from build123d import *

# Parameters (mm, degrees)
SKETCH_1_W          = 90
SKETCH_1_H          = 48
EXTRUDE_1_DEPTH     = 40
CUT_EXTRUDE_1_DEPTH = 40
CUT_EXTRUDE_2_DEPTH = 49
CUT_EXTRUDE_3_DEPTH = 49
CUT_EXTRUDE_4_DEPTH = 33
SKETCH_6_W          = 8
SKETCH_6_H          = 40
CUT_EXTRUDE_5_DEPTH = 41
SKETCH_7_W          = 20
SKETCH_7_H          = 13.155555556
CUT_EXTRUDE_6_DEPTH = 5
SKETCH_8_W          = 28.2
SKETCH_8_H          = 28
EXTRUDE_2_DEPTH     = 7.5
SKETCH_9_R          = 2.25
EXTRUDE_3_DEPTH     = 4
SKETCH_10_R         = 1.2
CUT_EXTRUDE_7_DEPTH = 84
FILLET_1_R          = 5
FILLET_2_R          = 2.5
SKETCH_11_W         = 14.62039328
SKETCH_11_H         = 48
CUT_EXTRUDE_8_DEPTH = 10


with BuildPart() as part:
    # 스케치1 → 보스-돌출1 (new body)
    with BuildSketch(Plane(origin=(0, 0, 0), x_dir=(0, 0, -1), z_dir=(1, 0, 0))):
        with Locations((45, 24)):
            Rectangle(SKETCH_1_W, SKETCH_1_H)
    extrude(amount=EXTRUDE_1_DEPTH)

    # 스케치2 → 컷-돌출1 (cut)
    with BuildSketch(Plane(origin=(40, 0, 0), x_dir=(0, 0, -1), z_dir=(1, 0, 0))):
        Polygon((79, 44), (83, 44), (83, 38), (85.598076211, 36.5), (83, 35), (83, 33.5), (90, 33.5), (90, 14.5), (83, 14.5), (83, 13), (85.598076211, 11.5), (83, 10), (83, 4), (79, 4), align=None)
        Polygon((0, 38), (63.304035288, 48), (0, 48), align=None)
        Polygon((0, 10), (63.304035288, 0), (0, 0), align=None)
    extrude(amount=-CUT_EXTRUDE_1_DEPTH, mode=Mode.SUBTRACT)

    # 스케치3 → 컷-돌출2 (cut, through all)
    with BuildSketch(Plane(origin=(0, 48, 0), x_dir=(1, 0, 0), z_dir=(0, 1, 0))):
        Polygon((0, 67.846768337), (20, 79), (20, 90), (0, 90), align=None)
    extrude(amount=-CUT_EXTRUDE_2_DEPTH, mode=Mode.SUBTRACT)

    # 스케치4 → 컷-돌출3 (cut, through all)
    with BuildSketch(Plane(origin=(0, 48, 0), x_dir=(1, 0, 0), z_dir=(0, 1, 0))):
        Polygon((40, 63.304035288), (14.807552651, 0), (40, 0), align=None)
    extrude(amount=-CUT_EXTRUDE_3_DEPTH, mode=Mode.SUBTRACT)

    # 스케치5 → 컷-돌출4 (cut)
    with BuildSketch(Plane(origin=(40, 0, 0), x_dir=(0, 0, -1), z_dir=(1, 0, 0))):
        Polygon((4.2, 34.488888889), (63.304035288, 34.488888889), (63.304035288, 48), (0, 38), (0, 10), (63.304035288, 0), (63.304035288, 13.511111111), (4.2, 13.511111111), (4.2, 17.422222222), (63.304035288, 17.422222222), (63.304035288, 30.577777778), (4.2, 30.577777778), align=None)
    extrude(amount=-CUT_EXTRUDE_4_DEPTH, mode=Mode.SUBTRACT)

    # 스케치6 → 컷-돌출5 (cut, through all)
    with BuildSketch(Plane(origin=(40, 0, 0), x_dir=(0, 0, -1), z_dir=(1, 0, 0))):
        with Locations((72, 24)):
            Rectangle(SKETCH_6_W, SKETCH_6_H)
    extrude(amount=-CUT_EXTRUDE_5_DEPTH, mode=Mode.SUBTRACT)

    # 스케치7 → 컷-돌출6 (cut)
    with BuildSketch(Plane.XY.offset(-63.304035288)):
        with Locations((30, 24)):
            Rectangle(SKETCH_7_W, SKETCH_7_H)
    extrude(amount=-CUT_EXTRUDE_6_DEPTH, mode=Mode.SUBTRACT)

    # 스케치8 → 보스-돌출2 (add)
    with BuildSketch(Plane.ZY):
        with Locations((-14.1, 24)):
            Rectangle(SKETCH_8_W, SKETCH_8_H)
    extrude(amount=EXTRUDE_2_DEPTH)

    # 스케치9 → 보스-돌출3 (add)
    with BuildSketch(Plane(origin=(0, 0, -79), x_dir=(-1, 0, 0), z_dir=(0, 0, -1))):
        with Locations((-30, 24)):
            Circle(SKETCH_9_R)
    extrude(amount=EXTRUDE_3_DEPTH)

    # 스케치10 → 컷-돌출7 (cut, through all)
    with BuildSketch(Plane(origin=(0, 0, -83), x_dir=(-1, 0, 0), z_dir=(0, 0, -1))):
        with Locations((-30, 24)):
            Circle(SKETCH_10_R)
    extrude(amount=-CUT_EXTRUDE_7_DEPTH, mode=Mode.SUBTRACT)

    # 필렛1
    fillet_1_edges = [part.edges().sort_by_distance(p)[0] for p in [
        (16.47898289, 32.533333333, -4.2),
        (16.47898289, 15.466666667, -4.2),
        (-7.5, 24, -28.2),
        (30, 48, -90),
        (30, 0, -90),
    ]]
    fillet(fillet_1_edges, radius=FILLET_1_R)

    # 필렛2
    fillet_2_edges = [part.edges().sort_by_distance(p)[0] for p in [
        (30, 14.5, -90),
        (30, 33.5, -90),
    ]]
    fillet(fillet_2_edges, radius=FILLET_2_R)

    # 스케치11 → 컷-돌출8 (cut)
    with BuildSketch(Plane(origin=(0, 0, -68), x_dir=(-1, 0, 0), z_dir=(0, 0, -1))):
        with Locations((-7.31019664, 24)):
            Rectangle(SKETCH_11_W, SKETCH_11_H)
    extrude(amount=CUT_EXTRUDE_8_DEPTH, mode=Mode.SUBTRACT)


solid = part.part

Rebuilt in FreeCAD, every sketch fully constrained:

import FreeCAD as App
import Part
import Sketcher
from FreeCAD import Vector
Q = App.Units.Quantity


def edges_at(feature, points):
    """Names of the edges that pass closest to the given points."""
    edges = feature.Shape.Edges
    near = lambda p: min(range(len(edges)), key=lambda i: edges[i].distToShape(Part.Vertex(*p))[0])
    return sorted({f"Edge{near(p) + 1}" for p in points})


def add_polygon(sketch, points):
    """Adds a closed chain of lines whose ends are joined by coincident constraints."""
    first, n = sketch.GeometryCount, len(points)
    for a, b in zip(points, points[1:] + points[:1]):
        sketch.addGeometry(Part.LineSegment(App.Vector(*a, 0), App.Vector(*b, 0)), False)
    for i in range(n):
        sketch.addConstraint(Sketcher.Constraint("Coincident", first + i, 2, first + (i + 1) % n, 1))

doc = App.newDocument("Part")
body = doc.addObject("PartDesign::Body", "Body")

# Sketch on YZ plane
sketch1 = body.newObject("Sketcher::SketchObject", "Sketch")
sketch1.AttachmentSupport = (doc.getObject("YZ_Plane"), [""])
sketch1.MapMode = "FlatFace"
add_polygon(sketch1, [(48, 0), (0, 0), (0, -90), (48, -90)])  # lines 0-3
sketch1.addConstraint([
    Sketcher.Constraint("Horizontal", 0),
    Sketcher.Constraint("Vertical", 1),
    Sketcher.Constraint("Horizontal", 2),
    Sketcher.Constraint("Vertical", 3),
    Sketcher.Constraint("Coincident", 0, 2, -1, 1),
    Sketcher.Constraint("DistanceX", 0, 2, 0, 1, 48.0),
    Sketcher.Constraint("DistanceY", 1, 2, 1, 1, 90.0),
])
pad1 = body.newObject("PartDesign::Pad", "Pad")
pad1.Profile = sketch1
pad1.Length = 40

# Sketch on YZ plane
sketch2 = body.newObject("Sketcher::SketchObject", "Sketch001")
sketch2.AttachmentSupport = (doc.getObject("YZ_Plane"), [""])
sketch2.MapMode = "FlatFace"
sketch2.AttachmentOffset = App.Placement(Vector(0, 0, 40), App.Rotation())
add_polygon(sketch2, [(44, -83), (44, -79), (4, -79), (4, -83), (10, -83), (11.5, -85.6), (13, -83), (14.5, -83), (14.5, -90), (33.5, -90), (33.5, -83), (35, -83), (36.5, -85.6), (38, -83)])  # lines 0-13
add_polygon(sketch2, [(38, 0), (48, -63.3), (48, 0)])  # lines 14-16
add_polygon(sketch2, [(0, -63.3), (10, 0), (0, 0)])  # lines 17-19
sketch2.addConstraint([
    Sketcher.Constraint("Vertical", 0),
    Sketcher.Constraint("Horizontal", 1),
    Sketcher.Constraint("Vertical", 2),
    Sketcher.Constraint("Horizontal", 3),
    Sketcher.Constraint("Horizontal", 6),
    Sketcher.Constraint("Vertical", 7),
    Sketcher.Constraint("Horizontal", 8),
    Sketcher.Constraint("Vertical", 9),
    Sketcher.Constraint("Horizontal", 10),
    Sketcher.Constraint("Horizontal", 13),
    Sketcher.Constraint("Vertical", 15),
    Sketcher.Constraint("Horizontal", 16),
    Sketcher.Constraint("Horizontal", 18),
    Sketcher.Constraint("Vertical", 19),
    Sketcher.Constraint("Coincident", 18, 2, -1, 1),
    Sketcher.Constraint("PointOnObject", 15, 2, -1),
    Sketcher.Constraint("Parallel", 4, 11),
    Sketcher.Constraint("Parallel", 5, 12),
    Sketcher.Constraint("Horizontal", 3, 2, 5, 2),
    Sketcher.Constraint("Horizontal", 6, 2, 9, 2),
    Sketcher.Constraint("Horizontal", 4, 2, 11, 2),
    Sketcher.Constraint("Horizontal", 10, 2, 12, 2),
    Sketcher.Constraint("Horizontal", 14, 2, 19, 2),
    Sketcher.Constraint("Vertical", 12, 2, 16, 2),
    Sketcher.Constraint("Vertical", 3, 2, 17, 2),
    Sketcher.Constraint("Equal", 6, 10),
    Sketcher.Constraint("Equal", 3, 13),
    Sketcher.Constraint("Equal", 16, 18),
    Sketcher.Constraint("Equal", 4, 5),
    Sketcher.Constraint("DistanceX", 1, 2, 1, 1, 40.0),
    Sketcher.Constraint("DistanceX", 3, 1, 3, 2, 6.0),
    Sketcher.Constraint("DistanceX", 8, 1, 8, 2, 19.0),
    Sketcher.Constraint("DistanceX", 16, 2, 16, 1, 10.0),
    Sketcher.Constraint("DistanceY", 0, 1, 0, 2, 4.0),
    Sketcher.Constraint("DistanceY", 7, 2, 7, 1, 7.0),
    Sketcher.Constraint("Angle", 4, Q("-60 deg")),
    Sketcher.Constraint("Distance", 4, 3.0),
    Sketcher.Constraint("DistanceY", 0, 2, -1, 1, 79.0),
    Sketcher.Constraint("DistanceY", 15, 1, 15, 2, 63.304035),
])
pocket1 = body.newObject("PartDesign::Pocket", "Pocket")
pocket1.Profile = sketch2
pocket1.Length = 40

# Sketch on XZ plane
sketch3 = body.newObject("Sketcher::SketchObject", "Sketch002")
sketch3.AttachmentSupport = (doc.getObject("XZ_Plane"), [""])
sketch3.MapMode = "FlatFace"
sketch3.AttachmentOffset = App.Placement(Vector(0, 0, -48), App.Rotation())
add_polygon(sketch3, [(0, -68), (20, -79), (20, -90), (0, -90)])  # lines 0-3
sketch3.addConstraint([
    Sketcher.Constraint("Vertical", 1),
    Sketcher.Constraint("Horizontal", 2),
    Sketcher.Constraint("Vertical", 3),
    Sketcher.Constraint("PointOnObject", 2, 2, -2),
    Sketcher.Constraint("DistanceX", 2, 2, 2, 1, 20.0),
    Sketcher.Constraint("DistanceY", 1, 2, 1, 1, 11.0),
    Sketcher.Constraint("DistanceY", 0, 2, -1, 1, 79.0),
    Sketcher.Constraint("DistanceY", 3, 1, 3, 2, 22.153232),
])
pocket2 = body.newObject("PartDesign::Pocket", "Pocket001")
pocket2.Profile = sketch3
pocket2.Type = "ThroughAll"
pocket2.Reversed = True

# Sketch on XZ plane
sketch4 = body.newObject("Sketcher::SketchObject", "Sketch003")
sketch4.AttachmentSupport = (doc.getObject("XZ_Plane"), [""])
sketch4.MapMode = "FlatFace"
sketch4.AttachmentOffset = App.Placement(Vector(0, 0, -48), App.Rotation())
add_polygon(sketch4, [(40, -63), (15, 0), (40, 0)])  # lines 0-2
sketch4.addConstraint([
    Sketcher.Constraint("Horizontal", 1),
    Sketcher.Constraint("Vertical", 2),
    Sketcher.Constraint("PointOnObject", 0, 2, -1),
    Sketcher.Constraint("DistanceX", -1, 1, 1, 2, 40.0),
    Sketcher.Constraint("DistanceX", 1, 1, 1, 2, 25.192447),
    Sketcher.Constraint("DistanceY", 2, 2, 2, 1, 63.304035),
])
pocket3 = body.newObject("PartDesign::Pocket", "Pocket002")
pocket3.Profile = sketch4
pocket3.Type = "ThroughAll"
pocket3.Reversed = True

# Sketch on YZ plane
sketch5 = body.newObject("Sketcher::SketchObject", "Sketch004")
sketch5.AttachmentSupport = (doc.getObject("YZ_Plane"), [""])
sketch5.MapMode = "FlatFace"
sketch5.AttachmentOffset = App.Placement(Vector(0, 0, 40), App.Rotation())
add_polygon(sketch5, [(34.5, -4.2), (34.5, -63.3), (48, -63.3), (38, 0), (10, 0), (0, -63.3), (13.5, -63.3), (13.5, -4.2), (17.4, -4.2), (17.4, -63.3), (30.6, -63.3), (30.6, -4.2)])  # lines 0-11
sketch5.addConstraint([
    Sketcher.Constraint("Vertical", 0),
    Sketcher.Constraint("Horizontal", 1),
    Sketcher.Constraint("Horizontal", 3),
    Sketcher.Constraint("Horizontal", 5),
    Sketcher.Constraint("Vertical", 6),
    Sketcher.Constraint("Horizontal", 7),
    Sketcher.Constraint("Vertical", 8),
    Sketcher.Constraint("Horizontal", 9),
    Sketcher.Constraint("Vertical", 10),
    Sketcher.Constraint("Horizontal", 11),
    Sketcher.Constraint("PointOnObject", 2, 2, -1),
    Sketcher.Constraint("PointOnObject", 4, 2, -2),
    Sketcher.Constraint("Horizontal", 1, 2, 4, 2),
    Sketcher.Constraint("Horizontal", 5, 2, 8, 2),
    Sketcher.Constraint("Horizontal", 7, 2, 10, 2),
    Sketcher.Constraint("Equal", 1, 5),
    Sketcher.Constraint("Equal", 7, 11),
    Sketcher.Constraint("Equal", 2, 4),
    Sketcher.Constraint("DistanceX", 3, 2, 3, 1, 28.0),
    Sketcher.Constraint("DistanceX", -1, 1, 1, 2, 48.0),
    Sketcher.Constraint("DistanceY", 6, 2, -1, 1, 4.2),
    Sketcher.Constraint("DistanceX", 1, 1, 1, 2, 13.511111),
    Sketcher.Constraint("DistanceX", 7, 1, 7, 2, 3.911111),
    Sketcher.Constraint("DistanceY", 0, 2, 0, 1, 59.104035),
])
pocket4 = body.newObject("PartDesign::Pocket", "Pocket003")
pocket4.Profile = sketch5
pocket4.Length = 33

# Sketch on YZ plane
sketch6 = body.newObject("Sketcher::SketchObject", "Sketch005")
sketch6.AttachmentSupport = (doc.getObject("YZ_Plane"), [""])
sketch6.MapMode = "FlatFace"
sketch6.AttachmentOffset = App.Placement(Vector(0, 0, 40), App.Rotation())
add_polygon(sketch6, [(44, -68), (4, -68), (4, -76), (44, -76)])  # lines 0-3
sketch6.addConstraint([
    Sketcher.Constraint("Horizontal", 0),
    Sketcher.Constraint("Vertical", 1),
    Sketcher.Constraint("Horizontal", 2),
    Sketcher.Constraint("Vertical", 3),
    Sketcher.Constraint("DistanceX", 0, 2, 0, 1, 40.0),
    Sketcher.Constraint("DistanceY", 1, 2, 1, 1, 8.0),
    Sketcher.Constraint("DistanceX", -1, 1, 0, 2, 4.0),
    Sketcher.Constraint("DistanceY", 0, 2, -1, 1, 68.0),
])
pocket5 = body.newObject("PartDesign::Pocket", "Pocket004")
pocket5.Profile = sketch6
pocket5.Type = "ThroughAll"

# Sketch on XY plane
sketch7 = body.newObject("Sketcher::SketchObject", "Sketch006")
sketch7.AttachmentSupport = (doc.getObject("XY_Plane"), [""])
sketch7.MapMode = "FlatFace"
sketch7.AttachmentOffset = App.Placement(Vector(0, 0, -63.304035), App.Rotation())
add_polygon(sketch7, [(20, 31), (20, 17), (40, 17), (40, 31)])  # lines 0-3
sketch7.addConstraint([
    Sketcher.Constraint("Vertical", 0),
    Sketcher.Constraint("Horizontal", 1),
    Sketcher.Constraint("Vertical", 2),
    Sketcher.Constraint("Horizontal", 3),
    Sketcher.Constraint("DistanceX", 1, 1, 1, 2, 20.0),
    Sketcher.Constraint("DistanceX", -1, 1, 0, 2, 20.0),
    Sketcher.Constraint("DistanceY", 0, 2, 0, 1, 13.155556),
    Sketcher.Constraint("DistanceY", -1, 1, 0, 2, 17.422222),
])
pocket6 = body.newObject("PartDesign::Pocket", "Pocket005")
pocket6.Profile = sketch7
pocket6.Length = 5

# Sketch on YZ plane
sketch8 = body.newObject("Sketcher::SketchObject", "Sketch007")
sketch8.AttachmentSupport = (doc.getObject("YZ_Plane"), [""])
sketch8.MapMode = "FlatFace"
add_polygon(sketch8, [(38, -28), (10, -28), (10, 0), (38, 0)])  # lines 0-3
sketch8.addConstraint([
    Sketcher.Constraint("Horizontal", 0),
    Sketcher.Constraint("Vertical", 1),
    Sketcher.Constraint("Horizontal", 2),
    Sketcher.Constraint("Vertical", 3),
    Sketcher.Constraint("PointOnObject", 1, 2, -1),
    Sketcher.Constraint("DistanceX", 0, 2, 0, 1, 28.0),
    Sketcher.Constraint("DistanceY", 1, 1, 1, 2, 28.2),
    Sketcher.Constraint("DistanceX", -1, 1, 0, 2, 10.0),
])
pad2 = body.newObject("PartDesign::Pad", "Pad001")
pad2.Profile = sketch8
pad2.Length = 7.5
pad2.Reversed = True

# Sketch on XY plane
sketch9 = body.newObject("Sketcher::SketchObject", "Sketch008")
sketch9.AttachmentSupport = (doc.getObject("XY_Plane"), [""])
sketch9.MapMode = "FlatFace"
sketch9.AttachmentOffset = App.Placement(Vector(0, 0, -79), App.Rotation())
sketch9.addGeometry(Part.Circle(Vector(30, 24, 0), Vector(0, 0, 1), 2.2), False)
sketch9.addConstraint([
    Sketcher.Constraint("Diameter", 0, 4.5),
    Sketcher.Constraint("DistanceX", -1, 1, 0, 3, 30.0),
    Sketcher.Constraint("DistanceY", -1, 1, 0, 3, 24.0),
])
pad3 = body.newObject("PartDesign::Pad", "Pad002")
pad3.Profile = sketch9
pad3.Length = 4
pad3.Reversed = True

# Sketch on XY plane
sketch10 = body.newObject("Sketcher::SketchObject", "Sketch009")
sketch10.AttachmentSupport = (doc.getObject("XY_Plane"), [""])
sketch10.MapMode = "FlatFace"
sketch10.AttachmentOffset = App.Placement(Vector(0, 0, -83), App.Rotation())
sketch10.addGeometry(Part.Circle(Vector(30, 24, 0), Vector(0, 0, 1), 1.2), False)
sketch10.addConstraint([
    Sketcher.Constraint("Diameter", 0, 2.4),
    Sketcher.Constraint("DistanceX", -1, 1, 0, 3, 30.0),
    Sketcher.Constraint("DistanceY", -1, 1, 0, 3, 24.0),
])
pocket7 = body.newObject("PartDesign::Pocket", "Pocket006")
pocket7.Profile = sketch10
pocket7.Type = "ThroughAll"
pocket7.Reversed = True
doc.recompute()

fillet = body.newObject("PartDesign::Fillet", "Fillet")
fillet.Base = (pocket7, edges_at(pocket7, [
    (16.479, 32.533, -4.2),
    (16.479, 15.467, -4.2),
    (-7.5, 24, -28.2),
    (30, 48, -90),
    (30, 0, -90),
]))
fillet.Radius = 5
doc.recompute()

fillet2 = body.newObject("PartDesign::Fillet", "Fillet001")
fillet2.Base = (fillet, edges_at(fillet, [(30, 14.5, -90), (30, 33.5, -90)]))
fillet2.Radius = 2.5

# Sketch on XY plane
sketch11 = body.newObject("Sketcher::SketchObject", "Sketch010")
sketch11.AttachmentSupport = (doc.getObject("XY_Plane"), [""])
sketch11.MapMode = "FlatFace"
sketch11.AttachmentOffset = App.Placement(Vector(0, 0, -68), App.Rotation())
add_polygon(sketch11, [(15, 48), (15, 0), (0, 0), (0, 48)])  # lines 0-3
sketch11.addConstraint([
    Sketcher.Constraint("Vertical", 0),
    Sketcher.Constraint("Horizontal", 1),
    Sketcher.Constraint("Vertical", 2),
    Sketcher.Constraint("Horizontal", 3),
    Sketcher.Constraint("Coincident", 1, 2, -1, 1),
    Sketcher.Constraint("DistanceY", 0, 2, 0, 1, 48.0),
    Sketcher.Constraint("DistanceX", 1, 2, 1, 1, 14.620393),
])
pocket8 = body.newObject("PartDesign::Pocket", "Pocket007")
pocket8.Profile = sketch11
pocket8.Length = 10

doc.recompute()
